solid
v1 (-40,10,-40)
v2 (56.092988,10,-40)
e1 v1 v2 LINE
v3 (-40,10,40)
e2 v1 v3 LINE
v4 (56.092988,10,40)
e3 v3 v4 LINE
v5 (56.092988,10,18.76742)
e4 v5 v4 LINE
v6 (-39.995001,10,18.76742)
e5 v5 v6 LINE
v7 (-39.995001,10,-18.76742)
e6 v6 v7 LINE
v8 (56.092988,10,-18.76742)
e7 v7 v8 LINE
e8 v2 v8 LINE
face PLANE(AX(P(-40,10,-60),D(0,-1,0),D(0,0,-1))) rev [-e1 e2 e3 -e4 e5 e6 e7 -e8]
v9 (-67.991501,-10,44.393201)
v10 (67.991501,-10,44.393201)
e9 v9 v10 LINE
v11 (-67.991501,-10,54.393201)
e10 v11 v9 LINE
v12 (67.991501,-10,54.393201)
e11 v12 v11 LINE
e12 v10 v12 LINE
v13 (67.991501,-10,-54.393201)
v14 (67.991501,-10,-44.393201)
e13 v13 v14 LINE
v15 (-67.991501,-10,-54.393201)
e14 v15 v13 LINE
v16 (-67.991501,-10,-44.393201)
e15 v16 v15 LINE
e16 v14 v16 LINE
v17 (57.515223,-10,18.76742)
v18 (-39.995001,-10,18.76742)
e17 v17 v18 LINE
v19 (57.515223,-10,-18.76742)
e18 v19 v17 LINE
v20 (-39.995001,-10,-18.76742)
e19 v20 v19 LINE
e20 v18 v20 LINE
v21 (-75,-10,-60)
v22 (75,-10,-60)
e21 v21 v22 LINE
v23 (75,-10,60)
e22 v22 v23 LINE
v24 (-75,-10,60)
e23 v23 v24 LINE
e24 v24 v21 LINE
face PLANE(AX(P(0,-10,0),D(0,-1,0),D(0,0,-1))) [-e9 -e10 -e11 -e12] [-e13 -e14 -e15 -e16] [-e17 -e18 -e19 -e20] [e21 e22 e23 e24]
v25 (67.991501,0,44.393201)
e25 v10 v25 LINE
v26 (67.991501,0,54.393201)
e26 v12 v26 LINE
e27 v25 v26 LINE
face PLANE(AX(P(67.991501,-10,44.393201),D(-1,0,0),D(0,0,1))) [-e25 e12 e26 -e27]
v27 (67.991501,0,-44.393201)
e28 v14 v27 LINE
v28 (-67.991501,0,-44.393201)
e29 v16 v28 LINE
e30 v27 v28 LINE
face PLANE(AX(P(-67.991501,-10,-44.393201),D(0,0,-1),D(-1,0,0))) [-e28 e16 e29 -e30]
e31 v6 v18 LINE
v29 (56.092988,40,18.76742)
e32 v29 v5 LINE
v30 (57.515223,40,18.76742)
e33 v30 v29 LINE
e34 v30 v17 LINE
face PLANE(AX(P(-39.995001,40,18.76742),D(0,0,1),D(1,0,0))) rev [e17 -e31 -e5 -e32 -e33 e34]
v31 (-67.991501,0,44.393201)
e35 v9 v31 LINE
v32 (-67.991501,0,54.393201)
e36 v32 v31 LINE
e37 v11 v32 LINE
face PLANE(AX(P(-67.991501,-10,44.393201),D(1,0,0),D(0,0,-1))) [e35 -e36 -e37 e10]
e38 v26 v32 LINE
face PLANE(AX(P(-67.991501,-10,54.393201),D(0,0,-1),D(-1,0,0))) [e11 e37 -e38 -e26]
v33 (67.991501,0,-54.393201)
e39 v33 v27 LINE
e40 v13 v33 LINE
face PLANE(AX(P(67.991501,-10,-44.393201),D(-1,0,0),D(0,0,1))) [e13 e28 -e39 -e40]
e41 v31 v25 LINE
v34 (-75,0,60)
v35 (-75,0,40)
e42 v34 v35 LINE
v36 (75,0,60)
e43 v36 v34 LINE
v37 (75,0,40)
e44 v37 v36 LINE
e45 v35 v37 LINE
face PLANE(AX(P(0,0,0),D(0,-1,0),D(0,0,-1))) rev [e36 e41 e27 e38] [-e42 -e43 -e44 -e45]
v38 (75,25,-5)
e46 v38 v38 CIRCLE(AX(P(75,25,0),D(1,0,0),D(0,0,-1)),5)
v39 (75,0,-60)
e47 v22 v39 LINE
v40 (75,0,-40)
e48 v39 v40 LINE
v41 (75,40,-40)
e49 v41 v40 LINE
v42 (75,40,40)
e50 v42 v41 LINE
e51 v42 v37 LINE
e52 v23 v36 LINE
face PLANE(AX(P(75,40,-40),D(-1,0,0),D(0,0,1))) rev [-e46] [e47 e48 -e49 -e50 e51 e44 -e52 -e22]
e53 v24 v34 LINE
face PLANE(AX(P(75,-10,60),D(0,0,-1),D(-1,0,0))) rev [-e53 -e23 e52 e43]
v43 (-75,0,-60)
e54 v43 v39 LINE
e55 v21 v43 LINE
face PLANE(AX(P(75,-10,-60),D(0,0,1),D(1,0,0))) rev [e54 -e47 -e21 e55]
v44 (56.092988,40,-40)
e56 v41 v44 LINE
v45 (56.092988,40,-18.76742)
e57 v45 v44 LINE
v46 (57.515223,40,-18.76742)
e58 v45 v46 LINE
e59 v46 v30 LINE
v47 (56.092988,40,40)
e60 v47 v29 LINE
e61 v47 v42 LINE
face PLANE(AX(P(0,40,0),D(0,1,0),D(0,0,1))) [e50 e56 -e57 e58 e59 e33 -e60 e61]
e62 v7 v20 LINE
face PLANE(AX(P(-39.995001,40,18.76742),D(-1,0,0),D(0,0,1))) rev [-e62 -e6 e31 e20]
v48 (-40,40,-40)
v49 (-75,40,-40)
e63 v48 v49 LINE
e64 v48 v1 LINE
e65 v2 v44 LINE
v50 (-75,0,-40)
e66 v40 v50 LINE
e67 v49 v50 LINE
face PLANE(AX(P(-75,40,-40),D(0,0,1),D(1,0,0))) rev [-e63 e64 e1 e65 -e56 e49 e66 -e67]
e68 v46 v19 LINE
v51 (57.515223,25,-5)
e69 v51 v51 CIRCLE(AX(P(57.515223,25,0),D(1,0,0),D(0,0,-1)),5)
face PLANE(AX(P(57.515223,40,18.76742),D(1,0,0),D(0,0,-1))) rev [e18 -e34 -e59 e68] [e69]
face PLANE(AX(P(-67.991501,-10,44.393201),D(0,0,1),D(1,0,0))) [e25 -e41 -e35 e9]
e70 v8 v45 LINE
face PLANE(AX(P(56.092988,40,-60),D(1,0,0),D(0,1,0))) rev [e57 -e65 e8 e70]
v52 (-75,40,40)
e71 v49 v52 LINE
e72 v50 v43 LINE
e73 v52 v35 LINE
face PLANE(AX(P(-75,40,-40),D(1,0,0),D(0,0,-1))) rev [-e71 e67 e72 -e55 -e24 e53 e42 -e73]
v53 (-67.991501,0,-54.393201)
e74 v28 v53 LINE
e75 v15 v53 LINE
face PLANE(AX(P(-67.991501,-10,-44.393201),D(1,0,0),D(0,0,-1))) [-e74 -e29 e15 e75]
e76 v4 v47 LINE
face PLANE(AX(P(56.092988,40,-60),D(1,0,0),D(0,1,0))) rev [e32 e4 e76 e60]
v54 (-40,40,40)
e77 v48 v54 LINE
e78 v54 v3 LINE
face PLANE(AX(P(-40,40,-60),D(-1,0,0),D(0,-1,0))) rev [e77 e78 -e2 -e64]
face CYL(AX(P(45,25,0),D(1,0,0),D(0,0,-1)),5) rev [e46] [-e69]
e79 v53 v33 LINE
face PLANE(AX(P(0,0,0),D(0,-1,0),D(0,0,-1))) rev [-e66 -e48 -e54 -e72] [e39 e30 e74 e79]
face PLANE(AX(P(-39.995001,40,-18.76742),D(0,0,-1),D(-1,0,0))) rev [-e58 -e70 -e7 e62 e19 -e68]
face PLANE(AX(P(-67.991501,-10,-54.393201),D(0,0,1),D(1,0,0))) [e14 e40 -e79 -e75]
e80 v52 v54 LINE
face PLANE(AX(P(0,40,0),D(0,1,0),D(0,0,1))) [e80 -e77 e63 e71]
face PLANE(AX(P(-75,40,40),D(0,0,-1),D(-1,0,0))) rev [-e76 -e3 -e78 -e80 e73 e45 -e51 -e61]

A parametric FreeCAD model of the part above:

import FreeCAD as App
import Part
import Sketcher
from FreeCAD import Vector
Q = App.Units.Quantity


def add_polygon(sketch, points):
    """Adds a closed chain of lines whose ends are joined by coincident constraints."""
    first, n = sketch.GeometryCount, len(points)
    for a, b in zip(points, points[1:] + points[:1]):
        sketch.addGeometry(Part.LineSegment(App.Vector(*a, 0), App.Vector(*b, 0)), False)
    for i in range(n):
        sketch.addConstraint(Sketcher.Constraint("Coincident", first + i, 2, first + (i + 1) % n, 1))

doc = App.newDocument("Part")
params = doc.addObject("Spreadsheet::Sheet", "Params")
for row, (alias, value) in enumerate([
    ("sketch1_width", "150 mm"),
    ("sketch1_height", "80 mm"),
    ("pad1_length", "40 mm"),
    ("sketch2_width", "150 mm"),
    ("sketch2_height", "120 mm"),
    ("sketch2_height2", "10 mm"),
    ("pad2_length", "10 mm"),
    ("sketch3_height", "30 mm"),
    ("sketch5_diameter", "10 mm"),
    ("pocket3_length", "30 mm"),
], start=1):
    params.set(f"A{row}", alias)
    params.set(f"B{row}", "=" + value)
    params.setAlias(f"B{row}", alias)

body = doc.addObject("PartDesign::Body", "Body")

sketch1 = body.newObject("Sketcher::SketchObject", "Sketch")
sketch1.AttachmentSupport = (doc.getObject("XZ_Plane"), [""])
sketch1.MapMode = "FlatFace"
add_polygon(sketch1, [(-75, -40), (-75, 40), (75, 40), (75, -40)])
sketch1.addConstraint([
    Sketcher.Constraint("Vertical", 0),
    Sketcher.Constraint("Horizontal", 1),
    Sketcher.Constraint("Vertical", 2),
    Sketcher.Constraint("Horizontal", 3),
    Sketcher.Constraint("Symmetric", 0, 2, 2, 2, -1, 1),
    Sketcher.Constraint("DistanceX", 1, 1, 1, 2, Q("150 mm")),
    Sketcher.Constraint("DistanceY", 0, 1, 0, 2, Q("80 mm")),
])
sketch1.setExpression("Constraints[9]", "Params.sketch1_width")
sketch1.setExpression("Constraints[10]", "Params.sketch1_height")
pad1 = body.newObject("PartDesign::Pad", "Pad")
pad1.Profile = sketch1
pad1.setExpression("Length", "Params.pad1_length")
pad1.Reversed = True

sketch2 = body.newObject("Sketcher::SketchObject", "Sketch001")
sketch2.AttachmentSupport = (doc.getObject("XZ_Plane"), [""])
sketch2.MapMode = "FlatFace"
add_polygon(sketch2, [(-75, 60), (-75, -60), (75, -60), (75, 60)])
add_polygon(sketch2, [(68, -54), (-68, -54), (-68, -44), (68, -44)])
add_polygon(sketch2, [(68, 44), (-68, 44), (-68, 54), (68, 54)])
sketch2.addConstraint([
    Sketcher.Constraint("Vertical", 0),
    Sketcher.Constraint("Horizontal", 1),
    Sketcher.Constraint("Vertical", 2),
    Sketcher.Constraint("Horizontal", 3),
    Sketcher.Constraint("Horizontal", 4),
    Sketcher.Constraint("Vertical", 5),
    Sketcher.Constraint("Horizontal", 6),
    Sketcher.Constraint("Vertical", 7),
    Sketcher.Constraint("Horizontal", 8),
    Sketcher.Constraint("Vertical", 9),
    Sketcher.Constraint("Horizontal", 10),
    Sketcher.Constraint("Vertical", 11),
    Sketcher.Constraint("Symmetric", 0, 2, 2, 2, -1, 1),
    Sketcher.Constraint("Symmetric", 6, 2, 8, 2, -1, 1),
    Sketcher.Constraint("Symmetric", 4, 2, 10, 2, -1, 1),
    Sketcher.Constraint("Vertical", 5, 2, 8, 2),
    Sketcher.Constraint("DistanceX", 1, 1, 1, 2, Q("150 mm")),
    Sketcher.Constraint("DistanceY", 0, 2, 0, 1, Q("120 mm")),
    Sketcher.Constraint("DistanceY", 5, 1, 5, 2, Q("10 mm")),
    Sketcher.Constraint("DistanceX", 4, 2, -1, 1, Q("67.991501 mm")),
    Sketcher.Constraint("DistanceY", 4, 2, -1, 1, Q("54.393201 mm")),
])
sketch2.setExpression("Constraints[28]", "Params.sketch2_width")
sketch2.setExpression("Constraints[29]", "Params.sketch2_height")
sketch2.setExpression("Constraints[30]", "Params.sketch2_height2")
pad2 = body.newObject("PartDesign::Pad", "Pad001")
pad2.Profile = sketch2
pad2.setExpression("Length", "Params.pad2_length")

sketch3 = body.newObject("Sketcher::SketchObject", "Sketch002")
sketch3.AttachmentSupport = (doc.getObject("XY_Plane"), [""])
sketch3.MapMode = "FlatFace"
sketch3.AttachmentOffset = App.Placement(Vector(0, 0, 40), App.Rotation())
add_polygon(sketch3, [(-40, 40), (-40, 10), (56, 10), (56, 40)])
sketch3.addConstraint([
    Sketcher.Constraint("Vertical", 0),
    Sketcher.Constraint("Horizontal", 1),
    Sketcher.Constraint("Vertical", 2),
    Sketcher.Constraint("Horizontal", 3),
    Sketcher.Constraint("DistanceY", 0, 2, 0, 1, Q("30 mm")),
    Sketcher.Constraint("DistanceX", 0, 2, -1, 1, Q("40 mm")),
    Sketcher.Constraint("DistanceY", -1, 1, 0, 2, Q("10 mm")),
    Sketcher.Constraint("DistanceX", 1, 1, 1, 2, Q("96.092988 mm")),
])
sketch3.setExpression("Constraints[8]", "Params.sketch3_height")
pocket1 = body.newObject("PartDesign::Pocket", "Pocket")
pocket1.Profile = sketch3
pocket1.Type = "ThroughAll"

sketch4 = body.newObject("Sketcher::SketchObject", "Sketch003")
sketch4.AttachmentSupport = (doc.getObject("XZ_Plane"), [""])
sketch4.MapMode = "FlatFace"
sketch4.AttachmentOffset = App.Placement(Vector(0, 0, 10), App.Rotation())
add_polygon(sketch4, [(-40, 19), (-40, -19), (58, -19), (58, 19)])
sketch4.addConstraint([
    Sketcher.Constraint("Vertical", 0),
    Sketcher.Constraint("Horizontal", 1),
    Sketcher.Constraint("Vertical", 2),
    Sketcher.Constraint("Horizontal", 3),
    Sketcher.Constraint("DistanceX", 0, 2, -1, 1, Q("39.995001 mm")),
    Sketcher.Constraint("DistanceY", 0, 2, 0, 1, Q("37.53484 mm")),
    Sketcher.Constraint("DistanceX", 1, 1, 1, 2, Q("97.510223 mm")),
    Sketcher.Constraint("DistanceY", 0, 2, -1, 1, Q("18.76742 mm")),
])
pocket2 = body.newObject("PartDesign::Pocket", "Pocket001")
pocket2.Profile = sketch4
pocket2.Type = "ThroughAll"

sketch5 = body.newObject("Sketcher::SketchObject", "Sketch004")
sketch5.AttachmentSupport = (doc.getObject("YZ_Plane"), [""])
sketch5.MapMode = "FlatFace"
sketch5.AttachmentOffset = App.Placement(Vector(0, 0, 75), App.Rotation())
sketch5.addGeometry(Part.Circle(Vector(25, 0, 0), Vector(0, 0, 1), 5), False)
sketch5.addConstraint([
    Sketcher.Constraint("PointOnObject", 0, 3, -1),
    Sketcher.Constraint("Diameter", 0, Q("10 mm")),
    Sketcher.Constraint("DistanceX", -1, 1, 0, 3, Q("25 mm")),
])
sketch5.setExpression("Constraints[1]", "Params.sketch5_diameter")
pocket3 = body.newObject("PartDesign::Pocket", "Pocket002")
pocket3.Profile = sketch5
pocket3.setExpression("Length", "Params.pocket3_length")

doc.recompute()
